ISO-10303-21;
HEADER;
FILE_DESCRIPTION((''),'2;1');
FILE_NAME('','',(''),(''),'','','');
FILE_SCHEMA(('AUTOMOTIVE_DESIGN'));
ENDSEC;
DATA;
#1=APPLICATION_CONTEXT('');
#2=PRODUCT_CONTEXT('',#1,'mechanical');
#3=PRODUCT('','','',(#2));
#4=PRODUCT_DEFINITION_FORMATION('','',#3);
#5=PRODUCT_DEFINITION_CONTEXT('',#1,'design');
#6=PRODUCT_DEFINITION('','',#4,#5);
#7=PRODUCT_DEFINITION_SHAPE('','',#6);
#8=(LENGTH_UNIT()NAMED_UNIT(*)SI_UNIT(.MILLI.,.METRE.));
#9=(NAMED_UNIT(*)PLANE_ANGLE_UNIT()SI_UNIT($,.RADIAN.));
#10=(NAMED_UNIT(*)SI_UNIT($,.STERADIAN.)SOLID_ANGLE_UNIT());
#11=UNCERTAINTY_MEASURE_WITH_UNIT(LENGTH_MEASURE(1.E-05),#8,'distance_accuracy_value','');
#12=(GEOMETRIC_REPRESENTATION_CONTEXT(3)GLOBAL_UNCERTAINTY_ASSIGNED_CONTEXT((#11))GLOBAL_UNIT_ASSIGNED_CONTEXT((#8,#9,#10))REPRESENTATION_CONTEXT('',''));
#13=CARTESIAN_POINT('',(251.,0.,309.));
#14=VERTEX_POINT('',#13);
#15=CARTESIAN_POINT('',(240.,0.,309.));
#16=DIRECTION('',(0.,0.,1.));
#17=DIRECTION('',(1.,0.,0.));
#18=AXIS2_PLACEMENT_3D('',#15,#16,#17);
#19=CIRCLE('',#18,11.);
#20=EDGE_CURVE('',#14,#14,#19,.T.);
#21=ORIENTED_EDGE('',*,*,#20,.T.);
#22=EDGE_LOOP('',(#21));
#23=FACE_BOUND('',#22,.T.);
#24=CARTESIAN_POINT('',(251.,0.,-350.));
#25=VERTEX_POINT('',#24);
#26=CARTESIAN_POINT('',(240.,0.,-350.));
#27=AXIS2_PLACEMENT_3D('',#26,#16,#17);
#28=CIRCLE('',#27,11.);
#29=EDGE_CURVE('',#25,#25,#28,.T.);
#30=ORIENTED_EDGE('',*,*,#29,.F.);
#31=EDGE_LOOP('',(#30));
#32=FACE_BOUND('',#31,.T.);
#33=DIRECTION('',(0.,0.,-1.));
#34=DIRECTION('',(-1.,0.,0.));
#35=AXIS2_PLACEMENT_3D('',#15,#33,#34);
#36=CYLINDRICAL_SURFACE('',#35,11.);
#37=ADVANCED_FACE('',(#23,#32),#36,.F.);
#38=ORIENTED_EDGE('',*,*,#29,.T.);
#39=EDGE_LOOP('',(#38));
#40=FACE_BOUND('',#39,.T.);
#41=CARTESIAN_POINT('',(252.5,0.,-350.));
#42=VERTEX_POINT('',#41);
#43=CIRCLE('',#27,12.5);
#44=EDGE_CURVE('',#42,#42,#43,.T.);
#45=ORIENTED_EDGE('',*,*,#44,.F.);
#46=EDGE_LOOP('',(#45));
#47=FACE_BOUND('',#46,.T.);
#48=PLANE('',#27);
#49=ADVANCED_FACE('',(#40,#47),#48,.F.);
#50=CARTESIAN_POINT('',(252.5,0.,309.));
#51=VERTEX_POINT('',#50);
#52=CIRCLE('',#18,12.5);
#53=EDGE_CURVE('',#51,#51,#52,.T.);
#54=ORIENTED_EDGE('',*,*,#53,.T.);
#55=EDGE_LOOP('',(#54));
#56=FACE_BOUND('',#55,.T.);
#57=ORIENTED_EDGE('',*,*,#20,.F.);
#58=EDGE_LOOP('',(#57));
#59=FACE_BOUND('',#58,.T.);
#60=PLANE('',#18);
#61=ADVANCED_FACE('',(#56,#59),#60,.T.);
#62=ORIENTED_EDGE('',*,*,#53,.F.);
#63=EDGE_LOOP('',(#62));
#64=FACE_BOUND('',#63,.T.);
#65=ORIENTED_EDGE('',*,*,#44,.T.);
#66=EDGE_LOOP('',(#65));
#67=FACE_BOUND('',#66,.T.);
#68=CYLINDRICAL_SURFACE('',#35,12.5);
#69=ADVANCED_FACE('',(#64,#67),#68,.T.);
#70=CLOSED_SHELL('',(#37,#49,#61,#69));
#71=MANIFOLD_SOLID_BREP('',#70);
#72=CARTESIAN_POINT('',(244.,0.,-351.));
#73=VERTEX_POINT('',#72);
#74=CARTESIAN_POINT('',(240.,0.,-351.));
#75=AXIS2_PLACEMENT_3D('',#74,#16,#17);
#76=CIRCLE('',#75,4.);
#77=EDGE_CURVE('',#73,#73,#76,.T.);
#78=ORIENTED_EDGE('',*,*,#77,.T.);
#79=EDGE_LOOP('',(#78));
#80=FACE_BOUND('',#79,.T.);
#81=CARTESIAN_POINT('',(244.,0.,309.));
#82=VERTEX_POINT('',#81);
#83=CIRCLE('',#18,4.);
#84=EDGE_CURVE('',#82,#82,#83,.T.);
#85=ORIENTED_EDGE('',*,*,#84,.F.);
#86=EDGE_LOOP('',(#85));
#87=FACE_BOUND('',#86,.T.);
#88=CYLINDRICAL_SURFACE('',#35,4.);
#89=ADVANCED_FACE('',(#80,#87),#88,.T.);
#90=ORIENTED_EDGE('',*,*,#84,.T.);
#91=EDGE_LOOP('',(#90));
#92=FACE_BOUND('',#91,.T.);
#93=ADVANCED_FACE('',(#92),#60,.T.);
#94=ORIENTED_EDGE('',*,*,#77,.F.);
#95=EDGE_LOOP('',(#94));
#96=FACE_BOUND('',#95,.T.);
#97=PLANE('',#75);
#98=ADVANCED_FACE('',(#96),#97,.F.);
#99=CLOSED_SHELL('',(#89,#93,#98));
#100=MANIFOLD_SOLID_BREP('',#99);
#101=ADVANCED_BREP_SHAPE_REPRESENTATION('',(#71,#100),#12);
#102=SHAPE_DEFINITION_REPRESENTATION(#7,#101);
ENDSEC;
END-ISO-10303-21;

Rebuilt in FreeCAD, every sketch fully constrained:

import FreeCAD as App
import Part
import Sketcher
from FreeCAD import Vector
Q = App.Units.Quantity

doc = App.newDocument("Part")
body = doc.addObject("PartDesign::Body", "Body")

sketch1 = body.newObject("Sketcher::SketchObject", "Sketch")
sketch1.AttachmentSupport = (doc.getObject("XY_Plane"), [""])
sketch1.MapMode = "FlatFace"
sketch1.AttachmentOffset = App.Placement(Vector(0, 0, -350), App.Rotation())
sketch1.addGeometry([
    Part.Circle(Vector(240, 0, 0), Vector(0, 0, 1), 12),
    Part.Circle(Vector(240, 0, 0), Vector(0, 0, 1), 11),
], False)
sketch1.addConstraint([
    Sketcher.Constraint("Coincident", 1, 3, 0, 3),
    Sketcher.Constraint("PointOnObject", 0, 3, -1),
    Sketcher.Constraint("Diameter", 0, Q("25 mm")),
    Sketcher.Constraint("Diameter", 1, Q("22 mm")),
    Sketcher.Constraint("DistanceX", -1, 1, 0, 3, Q("240 mm")),
])
pad1 = body.newObject("PartDesign::Pad", "Pad")
pad1.Profile = sketch1
pad1.Length = 659
body2 = doc.addObject("PartDesign::Body", "Body001")

sketch2 = body2.newObject("Sketcher::SketchObject", "Sketch001")
sketch2.AttachmentSupport = (doc.getObject("XY_Plane001"), [""])
sketch2.MapMode = "FlatFace"
sketch2.AttachmentOffset = App.Placement(Vector(0, 0, -351), App.Rotation())
sketch2.addGeometry(Part.Circle(Vector(240, 0, 0), Vector(0, 0, 1), 4), False)
sketch2.addConstraint([
    Sketcher.Constraint("PointOnObject", 0, 3, -1),
    Sketcher.Constraint("Diameter", 0, Q("8 mm")),
    Sketcher.Constraint("DistanceX", -1, 1, 0, 3, Q("240 mm")),
])
pad2 = body2.newObject("PartDesign::Pad", "Pad001")
pad2.Profile = sketch2
pad2.Length = 660

doc.recompute()
